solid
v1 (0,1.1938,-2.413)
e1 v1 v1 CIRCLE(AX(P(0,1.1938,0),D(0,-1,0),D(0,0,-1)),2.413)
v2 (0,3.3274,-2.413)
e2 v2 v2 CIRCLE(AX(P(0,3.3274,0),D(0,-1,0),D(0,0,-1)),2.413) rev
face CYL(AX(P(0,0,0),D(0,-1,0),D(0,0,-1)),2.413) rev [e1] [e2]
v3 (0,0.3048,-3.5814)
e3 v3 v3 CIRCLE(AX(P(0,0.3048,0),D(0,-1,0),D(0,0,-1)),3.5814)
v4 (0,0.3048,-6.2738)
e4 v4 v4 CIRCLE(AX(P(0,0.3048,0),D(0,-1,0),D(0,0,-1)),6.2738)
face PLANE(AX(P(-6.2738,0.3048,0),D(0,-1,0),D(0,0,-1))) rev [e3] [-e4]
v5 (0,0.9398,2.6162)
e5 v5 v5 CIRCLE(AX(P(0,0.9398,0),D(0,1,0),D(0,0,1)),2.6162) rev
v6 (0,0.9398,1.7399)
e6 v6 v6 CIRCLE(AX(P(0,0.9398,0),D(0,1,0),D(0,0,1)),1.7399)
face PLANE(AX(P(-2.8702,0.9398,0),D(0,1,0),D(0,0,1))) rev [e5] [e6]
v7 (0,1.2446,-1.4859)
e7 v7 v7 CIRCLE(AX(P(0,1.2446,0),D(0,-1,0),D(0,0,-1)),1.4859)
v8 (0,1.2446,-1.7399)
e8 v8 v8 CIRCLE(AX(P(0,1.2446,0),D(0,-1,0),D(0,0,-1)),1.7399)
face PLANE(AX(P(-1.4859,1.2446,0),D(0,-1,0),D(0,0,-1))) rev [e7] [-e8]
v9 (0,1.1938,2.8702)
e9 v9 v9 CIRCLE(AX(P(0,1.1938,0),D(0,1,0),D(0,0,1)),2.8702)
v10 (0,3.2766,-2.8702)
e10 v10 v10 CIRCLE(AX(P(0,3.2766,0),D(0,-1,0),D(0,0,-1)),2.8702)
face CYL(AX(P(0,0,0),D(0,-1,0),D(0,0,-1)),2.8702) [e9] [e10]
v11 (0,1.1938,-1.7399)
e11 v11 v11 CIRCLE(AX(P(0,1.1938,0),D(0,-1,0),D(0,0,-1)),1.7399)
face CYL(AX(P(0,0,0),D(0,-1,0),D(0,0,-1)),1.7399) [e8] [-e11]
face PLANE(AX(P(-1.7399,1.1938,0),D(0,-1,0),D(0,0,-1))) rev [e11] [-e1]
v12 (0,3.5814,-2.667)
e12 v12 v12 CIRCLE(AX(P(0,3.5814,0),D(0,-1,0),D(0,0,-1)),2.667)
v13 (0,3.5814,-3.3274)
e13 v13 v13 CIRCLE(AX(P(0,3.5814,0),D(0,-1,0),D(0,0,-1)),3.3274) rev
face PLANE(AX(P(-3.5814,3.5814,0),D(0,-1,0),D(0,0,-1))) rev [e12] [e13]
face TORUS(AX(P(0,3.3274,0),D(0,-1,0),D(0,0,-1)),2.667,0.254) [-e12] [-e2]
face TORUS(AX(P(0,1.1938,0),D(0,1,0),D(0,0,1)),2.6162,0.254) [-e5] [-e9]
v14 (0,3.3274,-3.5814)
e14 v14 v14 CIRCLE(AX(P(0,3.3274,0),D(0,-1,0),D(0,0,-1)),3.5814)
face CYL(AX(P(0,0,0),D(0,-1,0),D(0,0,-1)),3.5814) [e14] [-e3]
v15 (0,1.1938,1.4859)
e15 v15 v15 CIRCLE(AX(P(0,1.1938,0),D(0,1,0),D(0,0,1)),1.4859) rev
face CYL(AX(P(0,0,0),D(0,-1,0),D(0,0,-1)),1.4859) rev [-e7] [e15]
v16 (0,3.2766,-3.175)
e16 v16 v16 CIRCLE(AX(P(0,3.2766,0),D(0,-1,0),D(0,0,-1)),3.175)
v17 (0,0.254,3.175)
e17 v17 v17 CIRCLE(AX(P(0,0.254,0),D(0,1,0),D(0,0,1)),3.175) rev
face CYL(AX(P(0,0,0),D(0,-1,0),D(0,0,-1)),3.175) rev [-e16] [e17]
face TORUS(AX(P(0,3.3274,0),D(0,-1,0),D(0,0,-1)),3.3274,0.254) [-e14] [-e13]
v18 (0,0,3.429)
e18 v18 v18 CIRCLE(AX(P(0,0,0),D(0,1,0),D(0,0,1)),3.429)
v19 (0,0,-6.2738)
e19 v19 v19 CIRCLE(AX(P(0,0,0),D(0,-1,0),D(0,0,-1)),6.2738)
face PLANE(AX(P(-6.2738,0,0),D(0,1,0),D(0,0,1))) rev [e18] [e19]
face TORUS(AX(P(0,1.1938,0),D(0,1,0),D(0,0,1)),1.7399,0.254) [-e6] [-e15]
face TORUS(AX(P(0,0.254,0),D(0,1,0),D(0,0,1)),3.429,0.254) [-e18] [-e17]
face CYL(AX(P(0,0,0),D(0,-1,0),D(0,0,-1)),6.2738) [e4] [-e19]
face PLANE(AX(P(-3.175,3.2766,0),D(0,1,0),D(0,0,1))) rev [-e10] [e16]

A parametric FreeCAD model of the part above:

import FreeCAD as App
import Part
import Sketcher
Q = App.Units.Quantity


def edges_at(feature, points):
    """Names of the edges that pass closest to the given points."""
    edges = feature.Shape.Edges
    near = lambda p: min(range(len(edges)), key=lambda i: edges[i].distToShape(Part.Vertex(*p))[0])
    return sorted({f"Edge{near(p) + 1}" for p in points})


def add_polygon(sketch, points):
    """Adds a closed chain of lines whose ends are joined by coincident constraints."""
    first, n = sketch.GeometryCount, len(points)
    for a, b in zip(points, points[1:] + points[:1]):
        sketch.addGeometry(Part.LineSegment(App.Vector(*a, 0), App.Vector(*b, 0)), False)
    for i in range(n):
        sketch.addConstraint(Sketcher.Constraint("Coincident", first + i, 2, first + (i + 1) % n, 1))

doc = App.newDocument("Part")
body = doc.addObject("PartDesign::Body", "Body")

# Sketch on XY plane
sketch1 = body.newObject("Sketcher::SketchObject", "Sketch")
sketch1.AttachmentSupport = (doc.getObject("XY_Plane"), [""])
sketch1.MapMode = "FlatFace"
add_polygon(sketch1, [(-6.27, 0), (-3.17, 0), (-3.17, 3.28), (-2.87, 3.28), (-2.87, 0.94), (-1.49, 0.94), (-1.49, 1.24), (-1.74, 1.24), (-1.74, 1.19), (-2.41, 1.19), (-2.41, 3.58), (-3.58, 3.58), (-3.58, 0.3), (-6.27, 0.3)])  # lines 0-13
sketch1.addConstraint(Sketcher.Constraint("Horizontal", 0))
sketch1.addConstraint(Sketcher.Constraint("Vertical", 1))
sketch1.addConstraint(Sketcher.Constraint("Horizontal", 2))
sketch1.addConstraint(Sketcher.Constraint("Vertical", 3))
sketch1.addConstraint(Sketcher.Constraint("Horizontal", 4))
sketch1.addConstraint(Sketcher.Constraint("Vertical", 5))
sketch1.addConstraint(Sketcher.Constraint("Horizontal", 6))
sketch1.addConstraint(Sketcher.Constraint("Vertical", 7))
sketch1.addConstraint(Sketcher.Constraint("Horizontal", 8))
sketch1.addConstraint(Sketcher.Constraint("Vertical", 9))
sketch1.addConstraint(Sketcher.Constraint("Horizontal", 10))
sketch1.addConstraint(Sketcher.Constraint("Vertical", 11))
sketch1.addConstraint(Sketcher.Constraint("Horizontal", 12))
sketch1.addConstraint(Sketcher.Constraint("Vertical", 13))
sketch1.addConstraint(Sketcher.Constraint("PointOnObject", 0, 2, -1))
sketch1.addConstraint(Sketcher.Constraint("Equal", 2, 5))
sketch1.addConstraint(Sketcher.Constraint("Equal", 1, 11))
sketch1.addConstraint(Sketcher.Constraint("Equal", 5, 13))
sketch1.addConstraint(Sketcher.Constraint("DistanceX", 6, 2, 6, 1, Q("0.01 in")))
sketch1.addConstraint(Sketcher.Constraint("DistanceX", 0, 1, 0, 2, Q("0.122 in")))
sketch1.addConstraint(Sketcher.Constraint("DistanceX", 2, 1, 2, 2, Q("0.012 in")))
sketch1.addConstraint(Sketcher.Constraint("DistanceX", 10, 2, 10, 1, Q("0.046 in")))
sketch1.addConstraint(Sketcher.Constraint("DistanceX", 12, 2, 12, 1, Q("0.106 in")))
sketch1.addConstraint(Sketcher.Constraint("DistanceY", 1, 1, 1, 2, Q("0.129 in")))
sketch1.addConstraint(Sketcher.Constraint("DistanceY", 3, 2, 3, 1, Q("0.092 in")))
sketch1.addConstraint(Sketcher.Constraint("DistanceY", 7, 2, 7, 1, Q("0.002 in")))
sketch1.addConstraint(Sketcher.Constraint("DistanceX", 4, 1, 4, 2, Q("0.0545 in")))
sketch1.addConstraint(Sketcher.Constraint("DistanceX", 0, 2, -1, 1, Q("0.125 in")))
revolution = body.newObject("PartDesign::Revolution", "Revolution")
revolution.Profile = sketch1
revolution.ReferenceAxis = (sketch1, ["V_Axis"])
revolution.Angle = 360
doc.recompute()

fillet = body.newObject("PartDesign::Fillet", "Fillet")
fillet.Base = (revolution, edges_at(revolution, [
    (0, 0.94, 2.87),
    (0, 0.94, 1.486),
    (0, 3.581, 2.413),
    (0, 3.581, 3.581),
    (0, 0, 3.175),
]))
fillet.Radius = Q("0.01 in")

doc.recompute()
